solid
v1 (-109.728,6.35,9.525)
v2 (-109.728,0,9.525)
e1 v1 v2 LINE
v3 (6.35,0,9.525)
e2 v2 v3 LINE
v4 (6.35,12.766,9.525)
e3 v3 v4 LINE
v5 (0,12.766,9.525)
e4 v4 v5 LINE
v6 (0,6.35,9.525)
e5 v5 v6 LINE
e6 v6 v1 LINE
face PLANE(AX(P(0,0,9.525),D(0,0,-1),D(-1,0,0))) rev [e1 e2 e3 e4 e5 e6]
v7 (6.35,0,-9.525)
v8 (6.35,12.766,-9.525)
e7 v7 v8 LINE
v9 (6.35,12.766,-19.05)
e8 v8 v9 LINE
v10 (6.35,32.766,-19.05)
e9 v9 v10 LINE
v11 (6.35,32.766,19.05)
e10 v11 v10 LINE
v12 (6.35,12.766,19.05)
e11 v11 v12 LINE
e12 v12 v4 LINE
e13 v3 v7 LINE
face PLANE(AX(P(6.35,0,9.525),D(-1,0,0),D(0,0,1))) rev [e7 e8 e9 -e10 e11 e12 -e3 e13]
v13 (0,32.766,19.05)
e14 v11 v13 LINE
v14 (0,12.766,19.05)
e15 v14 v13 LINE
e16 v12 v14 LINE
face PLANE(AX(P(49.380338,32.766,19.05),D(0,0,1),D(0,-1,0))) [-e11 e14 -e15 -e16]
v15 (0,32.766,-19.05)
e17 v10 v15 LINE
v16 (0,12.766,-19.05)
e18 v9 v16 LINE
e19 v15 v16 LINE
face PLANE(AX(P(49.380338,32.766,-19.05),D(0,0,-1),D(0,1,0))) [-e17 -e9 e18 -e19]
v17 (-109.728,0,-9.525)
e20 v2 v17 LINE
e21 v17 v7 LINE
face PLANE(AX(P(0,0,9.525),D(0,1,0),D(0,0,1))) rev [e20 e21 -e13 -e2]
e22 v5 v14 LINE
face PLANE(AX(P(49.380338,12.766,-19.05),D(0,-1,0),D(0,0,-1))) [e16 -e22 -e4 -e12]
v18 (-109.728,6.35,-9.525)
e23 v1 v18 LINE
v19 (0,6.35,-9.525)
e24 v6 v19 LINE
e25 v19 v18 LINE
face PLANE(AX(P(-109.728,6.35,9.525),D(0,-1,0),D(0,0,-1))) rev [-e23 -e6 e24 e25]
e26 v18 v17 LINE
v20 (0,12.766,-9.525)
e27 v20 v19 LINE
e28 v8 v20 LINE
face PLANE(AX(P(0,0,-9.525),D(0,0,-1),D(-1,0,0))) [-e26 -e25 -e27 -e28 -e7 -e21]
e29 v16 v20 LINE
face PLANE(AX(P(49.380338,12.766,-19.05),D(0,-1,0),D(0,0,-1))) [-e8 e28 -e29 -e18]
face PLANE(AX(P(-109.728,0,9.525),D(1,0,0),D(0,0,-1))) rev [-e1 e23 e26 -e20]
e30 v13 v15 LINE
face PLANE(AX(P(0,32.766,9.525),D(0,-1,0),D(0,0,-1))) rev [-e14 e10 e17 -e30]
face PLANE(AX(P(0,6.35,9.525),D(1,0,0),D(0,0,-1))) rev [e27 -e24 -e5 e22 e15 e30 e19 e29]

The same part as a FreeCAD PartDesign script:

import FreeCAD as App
import Part
import Sketcher

V = App.Vector
Q = App.Units.Quantity


def add_polygon(sketch, points):
    """Adds a closed chain of lines whose ends are joined by coincident constraints."""
    first, n = sketch.GeometryCount, len(points)
    for a, b in zip(points, points[1:] + points[:1]):
        sketch.addGeometry(Part.LineSegment(App.Vector(*a, 0), App.Vector(*b, 0)), False)
    for i in range(n):
        sketch.addConstraint(Sketcher.Constraint("Coincident", first + i, 2, first + (i + 1) % n, 1))

doc = App.newDocument("Part")
body = doc.addObject("PartDesign::Body", "Body")

# Sketch on XY plane
sketch1 = body.newObject("Sketcher::SketchObject", "Sketch")
sketch1.AttachmentSupport = (doc.getObject("XY_Plane"), [""])
sketch1.MapMode = "FlatFace"
add_polygon(sketch1, [(-110, 0), (6, 0), (6, 33), (0, 33), (0, 6), (-110, 6)])  # lines 0-5
sketch1.addConstraint([
    Sketcher.Constraint("Horizontal", 0),
    Sketcher.Constraint("Vertical", 1),
    Sketcher.Constraint("Horizontal", 2),
    Sketcher.Constraint("Vertical", 3),
    Sketcher.Constraint("Horizontal", 4),
    Sketcher.Constraint("Vertical", 5),
    Sketcher.Constraint("PointOnObject", 0, 2, -1),
    Sketcher.Constraint("PointOnObject", 2, 2, -2),
    Sketcher.Constraint("Equal", 2, 5),
    Sketcher.Constraint("DistanceX", 0, 1, 0, 2, Q("4.57 in")),
    Sketcher.Constraint("DistanceX", 2, 2, 2, 1, Q("0.25 in")),
    Sketcher.Constraint("DistanceY", 1, 1, 1, 2, Q("1.29 in")),
])
pad1 = body.newObject("PartDesign::Pad", "Pad")
pad1.Profile = sketch1
pad1.Length = Q("0.75 in")
pad1.Midplane = True

# Sketch on YZ plane
sketch2 = body.newObject("Sketcher::SketchObject", "Sketch001")
sketch2.AttachmentSupport = (doc.getObject("YZ_Plane"), [""])
sketch2.MapMode = "FlatFace"
add_polygon(sketch2, [(33, -19), (13, -19), (13, 19), (33, 19)])  # lines 0-3
sketch2.addConstraint([
    Sketcher.Constraint("Horizontal", 0),
    Sketcher.Constraint("Vertical", 1),
    Sketcher.Constraint("Horizontal", 2),
    Sketcher.Constraint("Vertical", 3),
    Sketcher.Constraint("DistanceY", 1, 1, 1, 2, Q("1.5 in")),
    Sketcher.Constraint("DistanceY", 0, 2, -1, 1, Q("0.75 in")),
    Sketcher.Constraint("DistanceX", -1, 1, 2, 2, Q("1.29 in")),
    Sketcher.Constraint("DistanceX", 0, 2, 0, 1, 20.0),
])
pad2 = body.newObject("PartDesign::Pad", "Pad001")
pad2.Profile = sketch2
pad2.Length = Q("0.25 in")

doc.recompute()
